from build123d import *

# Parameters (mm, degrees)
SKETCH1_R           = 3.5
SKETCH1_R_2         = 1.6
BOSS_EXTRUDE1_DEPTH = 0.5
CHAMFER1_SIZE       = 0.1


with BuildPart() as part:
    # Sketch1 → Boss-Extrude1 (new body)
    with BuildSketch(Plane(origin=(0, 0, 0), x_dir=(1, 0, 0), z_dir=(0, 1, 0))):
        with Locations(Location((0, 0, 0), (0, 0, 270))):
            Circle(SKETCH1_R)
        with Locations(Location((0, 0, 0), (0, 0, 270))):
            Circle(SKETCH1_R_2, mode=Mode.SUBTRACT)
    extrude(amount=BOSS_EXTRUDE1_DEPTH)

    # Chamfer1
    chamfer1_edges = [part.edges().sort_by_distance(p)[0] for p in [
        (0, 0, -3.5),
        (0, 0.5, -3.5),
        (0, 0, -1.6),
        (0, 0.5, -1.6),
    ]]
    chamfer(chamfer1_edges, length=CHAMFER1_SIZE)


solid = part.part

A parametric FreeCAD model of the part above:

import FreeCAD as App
import Part
import Sketcher

V = App.Vector
Q = App.Units.Quantity


def edges_at(feature, points):
    """Names of the edges that pass closest to the given points."""
    edges = feature.Shape.Edges
    near = lambda p: min(range(len(edges)), key=lambda i: edges[i].distToShape(Part.Vertex(*p))[0])
    return sorted({f"Edge{near(p) + 1}" for p in points})

doc = App.newDocument("Part")
body = doc.addObject("PartDesign::Body", "Body")

# Sketch on XZ plane
sketch1 = body.newObject("Sketcher::SketchObject", "Sketch")
sketch1.AttachmentSupport = (doc.getObject("XZ_Plane"), [""])
sketch1.MapMode = "FlatFace"
sketch1.addGeometry([
    Part.Circle(V(0, 0, 0), V(0, 0, 1), 3.5),
    Part.Circle(V(0, 0, 0), V(0, 0, 1), 1.6),
], False)
sketch1.addConstraint([
    Sketcher.Constraint("Coincident", 0, 3, -1, 1),
    Sketcher.Constraint("Coincident", 1, 3, -1, 1),
    Sketcher.Constraint("Diameter", 0, Q("7 mm")),
    Sketcher.Constraint("Diameter", 1, Q("3.2 mm")),
])
pad1 = body.newObject("PartDesign::Pad", "Pad")
pad1.Profile = sketch1
pad1.Length = 0.5
pad1.Reversed = True
doc.recompute()

chamfer = body.newObject("PartDesign::Chamfer", "Chamfer")
chamfer.Base = (pad1, edges_at(pad1, [
    (0, 0, -3.5),
    (0, 0.5, -3.5),
    (0, 0, -1.6),
    (0, 0.5, -1.6),
]))
chamfer.Size = 0.1

doc.recompute()
